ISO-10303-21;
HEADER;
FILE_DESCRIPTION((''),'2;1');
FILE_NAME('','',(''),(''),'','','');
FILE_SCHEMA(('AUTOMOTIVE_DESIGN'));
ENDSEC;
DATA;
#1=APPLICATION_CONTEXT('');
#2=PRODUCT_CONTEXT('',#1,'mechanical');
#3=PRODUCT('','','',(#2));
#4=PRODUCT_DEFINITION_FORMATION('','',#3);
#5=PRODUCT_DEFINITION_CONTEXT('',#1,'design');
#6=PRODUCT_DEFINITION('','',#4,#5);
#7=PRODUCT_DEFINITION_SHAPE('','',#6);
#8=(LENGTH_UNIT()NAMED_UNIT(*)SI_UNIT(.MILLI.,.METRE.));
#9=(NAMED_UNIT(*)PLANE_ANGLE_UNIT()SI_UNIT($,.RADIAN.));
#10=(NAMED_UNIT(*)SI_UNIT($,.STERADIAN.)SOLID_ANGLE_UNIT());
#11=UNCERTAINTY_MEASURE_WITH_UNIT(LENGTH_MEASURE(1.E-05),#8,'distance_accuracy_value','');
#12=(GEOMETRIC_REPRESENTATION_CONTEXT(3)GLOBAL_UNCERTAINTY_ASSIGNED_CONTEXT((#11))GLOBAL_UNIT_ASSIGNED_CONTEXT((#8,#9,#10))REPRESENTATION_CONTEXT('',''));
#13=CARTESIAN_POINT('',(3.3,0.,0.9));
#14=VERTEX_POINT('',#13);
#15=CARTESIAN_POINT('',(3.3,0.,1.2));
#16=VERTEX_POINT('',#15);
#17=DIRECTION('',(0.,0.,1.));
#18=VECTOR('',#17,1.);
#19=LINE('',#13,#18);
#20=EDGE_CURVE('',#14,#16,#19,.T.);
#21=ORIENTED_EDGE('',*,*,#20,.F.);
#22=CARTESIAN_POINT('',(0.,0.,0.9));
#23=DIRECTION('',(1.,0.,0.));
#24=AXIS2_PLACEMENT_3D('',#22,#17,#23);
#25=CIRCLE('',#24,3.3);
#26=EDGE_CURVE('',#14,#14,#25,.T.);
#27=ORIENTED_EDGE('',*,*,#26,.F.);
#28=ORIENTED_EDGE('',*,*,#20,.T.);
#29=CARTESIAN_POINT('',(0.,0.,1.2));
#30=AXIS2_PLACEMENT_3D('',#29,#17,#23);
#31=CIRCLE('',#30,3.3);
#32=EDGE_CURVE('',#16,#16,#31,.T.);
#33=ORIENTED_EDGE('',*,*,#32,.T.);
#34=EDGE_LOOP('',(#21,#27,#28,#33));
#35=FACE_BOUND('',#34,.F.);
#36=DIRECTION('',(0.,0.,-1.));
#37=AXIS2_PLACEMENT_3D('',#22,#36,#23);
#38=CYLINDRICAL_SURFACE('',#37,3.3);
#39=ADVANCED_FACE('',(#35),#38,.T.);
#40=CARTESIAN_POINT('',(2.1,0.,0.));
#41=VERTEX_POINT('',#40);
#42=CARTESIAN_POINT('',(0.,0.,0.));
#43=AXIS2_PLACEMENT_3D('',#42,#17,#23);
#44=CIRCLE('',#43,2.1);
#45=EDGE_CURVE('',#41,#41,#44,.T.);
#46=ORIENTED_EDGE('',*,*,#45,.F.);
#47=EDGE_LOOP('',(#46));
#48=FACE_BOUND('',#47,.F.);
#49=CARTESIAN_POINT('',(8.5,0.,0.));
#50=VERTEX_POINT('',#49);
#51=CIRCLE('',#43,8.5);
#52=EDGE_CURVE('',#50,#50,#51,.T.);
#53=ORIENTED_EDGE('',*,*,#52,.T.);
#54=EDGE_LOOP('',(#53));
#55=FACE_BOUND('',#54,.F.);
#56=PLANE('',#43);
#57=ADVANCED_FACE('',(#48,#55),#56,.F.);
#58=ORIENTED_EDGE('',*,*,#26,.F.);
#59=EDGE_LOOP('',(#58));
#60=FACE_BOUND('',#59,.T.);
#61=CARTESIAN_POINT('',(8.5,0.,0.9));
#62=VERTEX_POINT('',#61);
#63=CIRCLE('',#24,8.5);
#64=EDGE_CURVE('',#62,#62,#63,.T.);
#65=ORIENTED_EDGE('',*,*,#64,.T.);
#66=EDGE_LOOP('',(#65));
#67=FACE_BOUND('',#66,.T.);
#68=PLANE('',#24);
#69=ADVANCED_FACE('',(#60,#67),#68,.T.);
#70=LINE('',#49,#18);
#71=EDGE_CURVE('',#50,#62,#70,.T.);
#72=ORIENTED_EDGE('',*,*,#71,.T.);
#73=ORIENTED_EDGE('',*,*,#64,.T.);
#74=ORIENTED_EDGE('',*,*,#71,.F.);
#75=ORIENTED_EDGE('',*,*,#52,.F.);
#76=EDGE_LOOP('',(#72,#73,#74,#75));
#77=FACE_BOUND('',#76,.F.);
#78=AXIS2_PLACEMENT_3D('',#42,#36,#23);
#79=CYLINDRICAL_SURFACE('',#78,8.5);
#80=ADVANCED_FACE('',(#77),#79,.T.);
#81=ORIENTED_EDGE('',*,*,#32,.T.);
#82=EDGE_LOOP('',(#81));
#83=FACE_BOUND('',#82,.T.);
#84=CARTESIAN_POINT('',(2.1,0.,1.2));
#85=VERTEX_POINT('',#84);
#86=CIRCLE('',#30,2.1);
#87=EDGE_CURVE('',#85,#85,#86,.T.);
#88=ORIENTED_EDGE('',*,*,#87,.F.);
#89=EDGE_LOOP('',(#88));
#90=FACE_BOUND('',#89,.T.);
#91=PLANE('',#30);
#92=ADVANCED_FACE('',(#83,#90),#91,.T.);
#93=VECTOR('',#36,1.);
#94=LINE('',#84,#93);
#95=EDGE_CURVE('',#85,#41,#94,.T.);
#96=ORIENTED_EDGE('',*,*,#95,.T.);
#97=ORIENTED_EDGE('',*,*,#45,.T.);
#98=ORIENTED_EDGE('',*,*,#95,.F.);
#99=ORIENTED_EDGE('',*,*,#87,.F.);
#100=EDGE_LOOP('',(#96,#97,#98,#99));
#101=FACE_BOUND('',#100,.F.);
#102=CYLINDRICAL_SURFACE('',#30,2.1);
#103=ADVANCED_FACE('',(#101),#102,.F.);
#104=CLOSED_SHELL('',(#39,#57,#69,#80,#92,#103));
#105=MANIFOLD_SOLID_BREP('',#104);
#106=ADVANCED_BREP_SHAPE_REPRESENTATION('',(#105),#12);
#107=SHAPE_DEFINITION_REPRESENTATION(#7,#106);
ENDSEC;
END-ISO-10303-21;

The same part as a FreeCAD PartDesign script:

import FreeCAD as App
import Part
import Sketcher

V = App.Vector

doc = App.newDocument("Part")
params = doc.addObject("Spreadsheet::Sheet", "Params")
for row, (alias, value) in enumerate([
    ("sketch1_diameter", "17 mm"),
    ("pad1_length", "0.9 mm"),
    ("sketch2_diameter", "6.6 mm"),
    ("pad2_length", "0.3 mm"),
    ("sketch3_diameter", "4.2 mm"),
], start=1):
    params.set(f"A{row}", alias)
    params.set(f"B{row}", "=" + value)
    params.setAlias(f"B{row}", alias)

body = doc.addObject("PartDesign::Body", "Body")

# Sketch on XY plane
sketch1 = body.newObject("Sketcher::SketchObject", "Sketch")
sketch1.AttachmentSupport = (doc.getObject("XY_Plane"), [""])
sketch1.MapMode = "FlatFace"
sketch1.addGeometry(Part.Circle(V(0, 0, 0), V(0, 0, 1), 8), False)
sketch1.addConstraint([
    Sketcher.Constraint("Coincident", 0, 3, -1, 1),
    Sketcher.Constraint("Diameter", 0, 17.0),
])
sketch1.setExpression("Constraints[1]", "Params.sketch1_diameter")
pad1 = body.newObject("PartDesign::Pad", "Pad")
pad1.Profile = sketch1
pad1.setExpression("Length", "Params.pad1_length")

# Sketch on XY plane
sketch2 = body.newObject("Sketcher::SketchObject", "Sketch001")
sketch2.AttachmentSupport = (doc.getObject("XY_Plane"), [""])
sketch2.MapMode = "FlatFace"
sketch2.AttachmentOffset = App.Placement(V(0, 0, 0.9), App.Rotation())
sketch2.addGeometry(Part.Circle(V(0, 0, 0), V(0, 0, 1), 3.3), False)
sketch2.addConstraint([
    Sketcher.Constraint("Coincident", 0, 3, -1, 1),
    Sketcher.Constraint("Diameter", 0, 6.6),
])
sketch2.setExpression("Constraints[1]", "Params.sketch2_diameter")
pad2 = body.newObject("PartDesign::Pad", "Pad001")
pad2.Profile = sketch2
pad2.setExpression("Length", "Params.pad2_length")

# Sketch on XY plane
sketch3 = body.newObject("Sketcher::SketchObject", "Sketch002")
sketch3.AttachmentSupport = (doc.getObject("XY_Plane"), [""])
sketch3.MapMode = "FlatFace"
sketch3.AttachmentOffset = App.Placement(V(0, 0, 1.2), App.Rotation())
sketch3.addGeometry(Part.Circle(V(0, 0, 0), V(0, 0, 1), 2.1), False)
sketch3.addConstraint([
    Sketcher.Constraint("Coincident", 0, 3, -1, 1),
    Sketcher.Constraint("Diameter", 0, 4.2),
])
sketch3.setExpression("Constraints[1]", "Params.sketch3_diameter")
pocket1 = body.newObject("PartDesign::Pocket", "Pocket")
pocket1.Profile = sketch3
pocket1.Type = "ThroughAll"

doc.recompute()
